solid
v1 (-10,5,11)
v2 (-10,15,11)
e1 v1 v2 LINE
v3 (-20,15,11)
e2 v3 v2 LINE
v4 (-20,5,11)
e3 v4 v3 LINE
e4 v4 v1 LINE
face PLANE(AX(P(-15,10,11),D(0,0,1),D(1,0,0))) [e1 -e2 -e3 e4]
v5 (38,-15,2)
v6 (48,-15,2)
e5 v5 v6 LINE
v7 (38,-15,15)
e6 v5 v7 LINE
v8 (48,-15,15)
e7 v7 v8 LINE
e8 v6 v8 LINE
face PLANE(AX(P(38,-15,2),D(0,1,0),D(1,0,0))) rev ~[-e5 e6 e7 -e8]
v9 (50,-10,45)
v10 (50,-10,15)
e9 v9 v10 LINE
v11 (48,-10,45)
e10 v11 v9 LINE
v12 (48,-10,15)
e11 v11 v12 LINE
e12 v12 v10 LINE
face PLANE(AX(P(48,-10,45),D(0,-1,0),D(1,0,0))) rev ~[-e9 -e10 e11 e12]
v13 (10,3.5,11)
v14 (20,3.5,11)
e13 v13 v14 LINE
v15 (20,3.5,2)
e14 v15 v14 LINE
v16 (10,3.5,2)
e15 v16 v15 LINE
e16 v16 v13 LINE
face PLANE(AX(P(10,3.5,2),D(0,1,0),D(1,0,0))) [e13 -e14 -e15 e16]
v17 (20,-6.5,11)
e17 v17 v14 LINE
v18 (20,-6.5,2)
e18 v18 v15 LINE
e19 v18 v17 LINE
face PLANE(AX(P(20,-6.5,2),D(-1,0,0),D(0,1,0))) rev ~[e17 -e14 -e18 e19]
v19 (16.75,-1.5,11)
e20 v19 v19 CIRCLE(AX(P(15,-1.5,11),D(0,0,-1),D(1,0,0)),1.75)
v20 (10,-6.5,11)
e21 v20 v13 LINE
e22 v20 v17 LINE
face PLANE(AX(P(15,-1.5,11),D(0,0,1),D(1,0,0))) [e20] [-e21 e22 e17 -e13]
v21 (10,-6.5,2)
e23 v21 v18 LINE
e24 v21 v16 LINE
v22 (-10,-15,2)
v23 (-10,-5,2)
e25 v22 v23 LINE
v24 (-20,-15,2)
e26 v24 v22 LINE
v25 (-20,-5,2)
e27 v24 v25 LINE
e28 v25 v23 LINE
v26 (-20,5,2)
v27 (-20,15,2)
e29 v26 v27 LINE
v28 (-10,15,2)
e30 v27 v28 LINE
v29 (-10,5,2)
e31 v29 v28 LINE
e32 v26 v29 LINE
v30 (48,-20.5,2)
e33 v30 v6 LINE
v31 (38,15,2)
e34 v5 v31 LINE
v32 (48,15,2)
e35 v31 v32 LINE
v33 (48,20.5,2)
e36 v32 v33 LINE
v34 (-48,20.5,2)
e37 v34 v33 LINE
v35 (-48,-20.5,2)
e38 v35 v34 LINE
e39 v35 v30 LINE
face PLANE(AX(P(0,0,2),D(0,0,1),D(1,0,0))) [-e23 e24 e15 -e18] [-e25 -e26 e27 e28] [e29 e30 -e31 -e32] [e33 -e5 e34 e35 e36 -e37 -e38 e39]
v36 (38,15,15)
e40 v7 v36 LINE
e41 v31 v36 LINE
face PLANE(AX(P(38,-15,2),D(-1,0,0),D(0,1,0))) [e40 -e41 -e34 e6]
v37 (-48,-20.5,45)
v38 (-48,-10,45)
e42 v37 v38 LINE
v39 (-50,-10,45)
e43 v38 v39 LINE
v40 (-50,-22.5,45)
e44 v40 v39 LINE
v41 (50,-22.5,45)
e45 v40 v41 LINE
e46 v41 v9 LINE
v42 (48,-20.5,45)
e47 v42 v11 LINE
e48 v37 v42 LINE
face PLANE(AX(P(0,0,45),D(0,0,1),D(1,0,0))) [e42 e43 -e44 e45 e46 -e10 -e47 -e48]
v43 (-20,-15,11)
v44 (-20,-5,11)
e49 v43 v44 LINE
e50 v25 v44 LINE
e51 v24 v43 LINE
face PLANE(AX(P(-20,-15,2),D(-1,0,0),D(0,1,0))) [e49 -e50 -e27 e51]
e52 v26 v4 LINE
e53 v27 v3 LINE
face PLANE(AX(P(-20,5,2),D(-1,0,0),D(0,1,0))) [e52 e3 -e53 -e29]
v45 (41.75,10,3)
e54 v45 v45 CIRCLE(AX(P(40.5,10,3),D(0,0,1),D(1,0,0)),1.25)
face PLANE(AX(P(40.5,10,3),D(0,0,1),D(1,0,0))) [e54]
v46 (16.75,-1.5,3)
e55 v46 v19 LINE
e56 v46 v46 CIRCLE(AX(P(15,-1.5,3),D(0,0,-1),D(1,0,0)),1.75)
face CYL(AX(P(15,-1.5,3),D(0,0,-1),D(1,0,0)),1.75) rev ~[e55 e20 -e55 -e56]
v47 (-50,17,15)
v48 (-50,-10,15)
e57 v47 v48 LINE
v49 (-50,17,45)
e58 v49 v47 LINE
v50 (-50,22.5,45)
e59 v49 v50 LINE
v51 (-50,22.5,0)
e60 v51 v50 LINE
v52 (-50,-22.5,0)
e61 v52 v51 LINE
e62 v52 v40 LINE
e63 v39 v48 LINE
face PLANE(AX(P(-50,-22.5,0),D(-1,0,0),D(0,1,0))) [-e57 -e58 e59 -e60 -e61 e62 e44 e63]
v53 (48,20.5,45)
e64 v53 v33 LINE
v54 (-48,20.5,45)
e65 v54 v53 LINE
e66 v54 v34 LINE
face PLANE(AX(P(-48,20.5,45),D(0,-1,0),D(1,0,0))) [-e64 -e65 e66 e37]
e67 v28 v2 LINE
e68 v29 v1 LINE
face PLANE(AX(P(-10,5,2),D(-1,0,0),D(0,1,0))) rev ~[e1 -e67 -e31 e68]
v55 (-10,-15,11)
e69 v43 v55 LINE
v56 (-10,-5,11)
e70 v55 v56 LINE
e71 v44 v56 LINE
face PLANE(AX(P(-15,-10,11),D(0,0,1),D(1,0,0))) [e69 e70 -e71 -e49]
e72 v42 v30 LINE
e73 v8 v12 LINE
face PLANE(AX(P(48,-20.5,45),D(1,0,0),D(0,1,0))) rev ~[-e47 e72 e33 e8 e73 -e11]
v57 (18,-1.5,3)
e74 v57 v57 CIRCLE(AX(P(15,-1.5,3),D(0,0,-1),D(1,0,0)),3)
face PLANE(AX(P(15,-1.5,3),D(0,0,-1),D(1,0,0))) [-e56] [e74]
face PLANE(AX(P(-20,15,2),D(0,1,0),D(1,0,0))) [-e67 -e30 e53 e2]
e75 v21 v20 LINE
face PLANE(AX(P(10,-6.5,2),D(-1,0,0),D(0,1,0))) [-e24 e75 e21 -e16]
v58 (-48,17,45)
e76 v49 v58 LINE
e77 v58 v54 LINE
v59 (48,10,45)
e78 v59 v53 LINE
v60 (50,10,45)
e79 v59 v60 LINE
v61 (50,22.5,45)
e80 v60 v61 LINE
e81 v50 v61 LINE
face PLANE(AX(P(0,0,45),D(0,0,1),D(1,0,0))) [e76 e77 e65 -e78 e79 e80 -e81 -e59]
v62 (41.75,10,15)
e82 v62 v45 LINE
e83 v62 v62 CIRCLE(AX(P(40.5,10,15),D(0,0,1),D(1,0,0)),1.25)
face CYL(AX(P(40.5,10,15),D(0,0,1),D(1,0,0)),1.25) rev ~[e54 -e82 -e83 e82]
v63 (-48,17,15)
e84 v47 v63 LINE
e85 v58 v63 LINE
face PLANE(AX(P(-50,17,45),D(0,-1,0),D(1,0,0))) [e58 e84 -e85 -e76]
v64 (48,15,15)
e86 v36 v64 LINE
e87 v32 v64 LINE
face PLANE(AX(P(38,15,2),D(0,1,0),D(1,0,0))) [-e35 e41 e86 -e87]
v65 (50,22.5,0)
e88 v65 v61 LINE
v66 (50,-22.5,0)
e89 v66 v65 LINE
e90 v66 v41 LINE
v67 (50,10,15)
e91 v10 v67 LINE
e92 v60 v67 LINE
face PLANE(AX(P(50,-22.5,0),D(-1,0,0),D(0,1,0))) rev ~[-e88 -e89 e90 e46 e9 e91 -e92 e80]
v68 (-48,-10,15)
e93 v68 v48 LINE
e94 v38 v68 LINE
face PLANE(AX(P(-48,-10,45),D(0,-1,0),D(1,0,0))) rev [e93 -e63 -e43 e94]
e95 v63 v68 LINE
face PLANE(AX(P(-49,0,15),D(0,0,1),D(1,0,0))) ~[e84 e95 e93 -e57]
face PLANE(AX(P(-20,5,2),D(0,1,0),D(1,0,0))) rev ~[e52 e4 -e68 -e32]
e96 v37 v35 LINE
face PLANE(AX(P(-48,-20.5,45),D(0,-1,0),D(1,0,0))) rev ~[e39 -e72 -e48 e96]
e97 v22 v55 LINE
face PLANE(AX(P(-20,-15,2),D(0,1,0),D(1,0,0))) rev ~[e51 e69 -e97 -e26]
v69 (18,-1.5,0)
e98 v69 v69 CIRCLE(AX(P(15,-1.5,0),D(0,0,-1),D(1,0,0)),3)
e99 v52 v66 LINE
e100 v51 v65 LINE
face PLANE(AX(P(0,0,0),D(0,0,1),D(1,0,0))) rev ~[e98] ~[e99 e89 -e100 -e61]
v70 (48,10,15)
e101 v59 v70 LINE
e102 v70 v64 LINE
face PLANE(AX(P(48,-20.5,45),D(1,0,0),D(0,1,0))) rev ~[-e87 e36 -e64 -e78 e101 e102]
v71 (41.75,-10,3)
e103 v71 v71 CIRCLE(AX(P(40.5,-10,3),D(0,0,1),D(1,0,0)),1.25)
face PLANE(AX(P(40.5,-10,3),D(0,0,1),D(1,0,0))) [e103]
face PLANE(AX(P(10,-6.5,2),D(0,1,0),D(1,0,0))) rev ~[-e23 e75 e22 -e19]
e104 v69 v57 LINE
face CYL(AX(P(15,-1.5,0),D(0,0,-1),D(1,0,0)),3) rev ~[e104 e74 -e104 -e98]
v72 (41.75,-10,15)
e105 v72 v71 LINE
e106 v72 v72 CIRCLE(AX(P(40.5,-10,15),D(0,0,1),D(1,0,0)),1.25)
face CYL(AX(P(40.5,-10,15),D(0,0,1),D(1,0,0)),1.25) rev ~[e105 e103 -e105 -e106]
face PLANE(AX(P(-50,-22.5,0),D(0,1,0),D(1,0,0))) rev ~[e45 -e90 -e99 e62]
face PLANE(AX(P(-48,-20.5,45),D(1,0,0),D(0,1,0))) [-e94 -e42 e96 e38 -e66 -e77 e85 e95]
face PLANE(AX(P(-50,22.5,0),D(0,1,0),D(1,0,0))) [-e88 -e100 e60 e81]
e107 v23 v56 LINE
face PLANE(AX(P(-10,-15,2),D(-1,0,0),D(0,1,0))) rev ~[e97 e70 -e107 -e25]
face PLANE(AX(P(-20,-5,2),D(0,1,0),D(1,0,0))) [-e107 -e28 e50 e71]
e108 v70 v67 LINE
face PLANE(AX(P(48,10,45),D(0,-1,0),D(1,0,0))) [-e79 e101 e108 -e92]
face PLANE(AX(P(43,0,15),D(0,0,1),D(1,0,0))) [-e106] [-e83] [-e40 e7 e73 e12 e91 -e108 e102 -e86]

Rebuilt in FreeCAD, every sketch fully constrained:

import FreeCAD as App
import Part
import Sketcher
Q = App.Units.Quantity

doc = App.newDocument("Part")
body = doc.addObject("PartDesign::Body", "Body")

# Sketch on XY plane
sketch1 = body.newObject("Sketcher::SketchObject", "Sketch")
sketch1.AttachmentSupport = (doc.getObject("XY_Plane"), [""])
sketch1.MapMode = "FlatFace"
sketch1.addGeometry([
    Part.LineSegment(App.Vector(-50, 22.5, 0), App.Vector(-50, -22.5, 0)),
    Part.LineSegment(App.Vector(-50, -22.5, 0), App.Vector(50, -22.5, 0)),
    Part.LineSegment(App.Vector(50, -22.5, 0), App.Vector(50, 22.5, 0)),
    Part.LineSegment(App.Vector(50, 22.5, 0), App.Vector(-50, 22.5, 0)),
], False)
sketch1.addConstraint([
    Sketcher.Constraint("Coincident", 0, 2, 1, 1),
    Sketcher.Constraint("Coincident", 1, 2, 2, 1),
    Sketcher.Constraint("Coincident", 2, 2, 3, 1),
    Sketcher.Constraint("Coincident", 3, 2, 0, 1),
    Sketcher.Constraint("Vertical", 0),
    Sketcher.Constraint("Horizontal", 1),
    Sketcher.Constraint("Vertical", 2),
    Sketcher.Constraint("Horizontal", 3),
    Sketcher.Constraint("Symmetric", 0, 2, 2, 2, -1, 1),
    Sketcher.Constraint("DistanceX", 1, 1, 1, 2, Q("100 mm")),
    Sketcher.Constraint("DistanceY", 0, 2, 0, 1, Q("45 mm")),
])
pad1 = body.newObject("PartDesign::Pad", "Pad")
pad1.Profile = sketch1
pad1.Length = 45

# Sketch on XY plane
sketch2 = body.newObject("Sketcher::SketchObject", "Sketch001")
sketch2.AttachmentSupport = (doc.getObject("XY_Plane"), [""])
sketch2.MapMode = "FlatFace"
sketch2.AttachmentOffset = App.Placement(App.Vector(0, 0, 45), App.Rotation())
sketch2.addGeometry([
    Part.LineSegment(App.Vector(-48, 20.5, 0), App.Vector(-48, -20.5, 0)),
    Part.LineSegment(App.Vector(-48, -20.5, 0), App.Vector(48, -20.5, 0)),
    Part.LineSegment(App.Vector(48, -20.5, 0), App.Vector(48, 20.5, 0)),
    Part.LineSegment(App.Vector(48, 20.5, 0), App.Vector(-48, 20.5, 0)),
], False)
sketch2.addConstraint([
    Sketcher.Constraint("Coincident", 0, 2, 1, 1),
    Sketcher.Constraint("Coincident", 1, 2, 2, 1),
    Sketcher.Constraint("Coincident", 2, 2, 3, 1),
    Sketcher.Constraint("Coincident", 3, 2, 0, 1),
    Sketcher.Constraint("Vertical", 0),
    Sketcher.Constraint("Horizontal", 1),
    Sketcher.Constraint("Vertical", 2),
    Sketcher.Constraint("Horizontal", 3),
    Sketcher.Constraint("Symmetric", 0, 2, 2, 2, -1, 1),
    Sketcher.Constraint("DistanceX", 1, 1, 1, 2, Q("96 mm")),
    Sketcher.Constraint("DistanceY", 0, 2, 0, 1, Q("41 mm")),
])
pocket1 = body.newObject("PartDesign::Pocket", "Pocket")
pocket1.Profile = sketch2
pocket1.Length = 43

# Sketch on XY plane
sketch3 = body.newObject("Sketcher::SketchObject", "Sketch002")
sketch3.AttachmentSupport = (doc.getObject("XY_Plane"), [""])
sketch3.MapMode = "FlatFace"
sketch3.AttachmentOffset = App.Placement(App.Vector(0, 0, 2), App.Rotation())
sketch3.addGeometry([
    Part.LineSegment(App.Vector(10, 3.5, 0), App.Vector(10, -6.5, 0)),  # 0
    Part.LineSegment(App.Vector(10, -6.5, 0), App.Vector(20, -6.5, 0)),  # 1
    Part.LineSegment(App.Vector(20, -6.5, 0), App.Vector(20, 3.5, 0)),  # 2
    Part.LineSegment(App.Vector(20, 3.5, 0), App.Vector(10, 3.5, 0)),  # 3
    Part.LineSegment(App.Vector(-20, 15, 0), App.Vector(-20, 5, 0)),  # 4
    Part.LineSegment(App.Vector(-20, 5, 0), App.Vector(-10, 5, 0)),  # 5
    Part.LineSegment(App.Vector(-10, 5, 0), App.Vector(-10, 15, 0)),  # 6
    Part.LineSegment(App.Vector(-10, 15, 0), App.Vector(-20, 15, 0)),  # 7
    Part.LineSegment(App.Vector(-20, -5, 0), App.Vector(-20, -15, 0)),  # 8
    Part.LineSegment(App.Vector(-20, -15, 0), App.Vector(-10, -15, 0)),  # 9
    Part.LineSegment(App.Vector(-10, -15, 0), App.Vector(-10, -5, 0)),  # 10
    Part.LineSegment(App.Vector(-10, -5, 0), App.Vector(-20, -5, 0)),  # 11
], False)
sketch3.addConstraint([
    Sketcher.Constraint("Coincident", 0, 2, 1, 1),
    Sketcher.Constraint("Coincident", 1, 2, 2, 1),
    Sketcher.Constraint("Coincident", 2, 2, 3, 1),
    Sketcher.Constraint("Coincident", 3, 2, 0, 1),
    Sketcher.Constraint("Coincident", 4, 2, 5, 1),
    Sketcher.Constraint("Coincident", 5, 2, 6, 1),
    Sketcher.Constraint("Coincident", 6, 2, 7, 1),
    Sketcher.Constraint("Coincident", 7, 2, 4, 1),
    Sketcher.Constraint("Coincident", 8, 2, 9, 1),
    Sketcher.Constraint("Coincident", 9, 2, 10, 1),
    Sketcher.Constraint("Coincident", 10, 2, 11, 1),
    Sketcher.Constraint("Coincident", 11, 2, 8, 1),
    Sketcher.Constraint("Vertical", 0),
    Sketcher.Constraint("Horizontal", 1),
    Sketcher.Constraint("Vertical", 2),
    Sketcher.Constraint("Horizontal", 3),
    Sketcher.Constraint("Vertical", 4),
    Sketcher.Constraint("Horizontal", 5),
    Sketcher.Constraint("Vertical", 6),
    Sketcher.Constraint("Horizontal", 7),
    Sketcher.Constraint("Vertical", 8),
    Sketcher.Constraint("Horizontal", 9),
    Sketcher.Constraint("Vertical", 10),
    Sketcher.Constraint("Horizontal", 11),
    Sketcher.Constraint("Symmetric", 7, 2, 8, 2, -1),
    Sketcher.Constraint("Symmetric", 5, 2, 10, 2, -1),
    Sketcher.Constraint("Equal", 3, 5),
    Sketcher.Constraint("Equal", 11, 0),
    Sketcher.Constraint("Equal", 2, 4),
    Sketcher.Constraint("DistanceX", 1, 1, 1, 2, Q("10 mm")),
    Sketcher.Constraint("DistanceX", -1, 1, 0, 2, Q("10 mm")),
    Sketcher.Constraint("DistanceX", 4, 2, -1, 1, Q("20 mm")),
    Sketcher.Constraint("DistanceY", -1, 1, 4, 2, Q("5 mm")),
    Sketcher.Constraint("DistanceY", 0, 2, -1, 1, Q("6.5 mm")),
])
pad2 = body.newObject("PartDesign::Pad", "Pad001")
pad2.Profile = sketch3
pad2.Length = 9

# Sketch on XY plane
sketch4 = body.newObject("Sketcher::SketchObject", "Sketch003")
sketch4.AttachmentSupport = (doc.getObject("XY_Plane"), [""])
sketch4.MapMode = "FlatFace"
sketch4.addGeometry(Part.Circle(App.Vector(15, -1.5, 0), App.Vector(0, 0, 1), 3), False)
sketch4.addConstraint([
    Sketcher.Constraint("Diameter", 0, Q("6 mm")),
    Sketcher.Constraint("DistanceX", -1, 1, 0, 3, Q("15 mm")),
    Sketcher.Constraint("DistanceY", 0, 3, -1, 1, Q("1.5 mm")),
])
pocket2 = body.newObject("PartDesign::Pocket", "Pocket001")
pocket2.Profile = sketch4
pocket2.Length = 3
pocket2.Reversed = True

# Sketch on XY plane
sketch5 = body.newObject("Sketcher::SketchObject", "Sketch004")
sketch5.AttachmentSupport = (doc.getObject("XY_Plane"), [""])
sketch5.MapMode = "FlatFace"
sketch5.AttachmentOffset = App.Placement(App.Vector(0, 0, 3), App.Rotation())
sketch5.addGeometry(Part.Circle(App.Vector(15, -1.5, 0), App.Vector(0, 0, 1), 1.75), False)
sketch5.addConstraint([
    Sketcher.Constraint("Diameter", 0, Q("3.5 mm")),
    Sketcher.Constraint("DistanceX", -1, 1, 0, 3, Q("15 mm")),
    Sketcher.Constraint("DistanceY", 0, 3, -1, 1, Q("1.5 mm")),
])
pocket3 = body.newObject("PartDesign::Pocket", "Pocket002")
pocket3.Profile = sketch5
pocket3.Type = "ThroughAll"
pocket3.Reversed = True

# Sketch on XY plane
sketch6 = body.newObject("Sketcher::SketchObject", "Sketch005")
sketch6.AttachmentSupport = (doc.getObject("XY_Plane"), [""])
sketch6.MapMode = "FlatFace"
sketch6.AttachmentOffset = App.Placement(App.Vector(0, 0, 45), App.Rotation())
sketch6.addGeometry([
    Part.LineSegment(App.Vector(48, 10, 0), App.Vector(48, -10, 0)),
    Part.LineSegment(App.Vector(48, -10, 0), App.Vector(50, -10, 0)),
    Part.LineSegment(App.Vector(50, -10, 0), App.Vector(50, 10, 0)),
    Part.LineSegment(App.Vector(50, 10, 0), App.Vector(48, 10, 0)),
], False)
sketch6.addConstraint([
    Sketcher.Constraint("Coincident", 0, 2, 1, 1),
    Sketcher.Constraint("Coincident", 1, 2, 2, 1),
    Sketcher.Constraint("Coincident", 2, 2, 3, 1),
    Sketcher.Constraint("Coincident", 3, 2, 0, 1),
    Sketcher.Constraint("Vertical", 0),
    Sketcher.Constraint("Horizontal", 1),
    Sketcher.Constraint("Vertical", 2),
    Sketcher.Constraint("Horizontal", 3),
    Sketcher.Constraint("DistanceX", 1, 1, 1, 2, Q("2 mm")),
    Sketcher.Constraint("DistanceY", 0, 2, 0, 1, Q("20 mm")),
    Sketcher.Constraint("DistanceX", -1, 1, 0, 2, Q("48 mm")),
    Sketcher.Constraint("DistanceY", 0, 2, -1, 1, Q("10 mm")),
])
pocket4 = body.newObject("PartDesign::Pocket", "Pocket003")
pocket4.Profile = sketch6
pocket4.Length = 30
doc.recompute()

mirrored = body.newObject("PartDesign::Mirrored", "Mirrored")
mirrored.Originals = [pocket4]
mirrored.MirrorPlane = (doc.getObject("YZ_Plane"), [""])
body.Tip = mirrored

# Sketch on XY plane
sketch7 = body.newObject("Sketcher::SketchObject", "Sketch006")
sketch7.AttachmentSupport = (doc.getObject("XY_Plane"), [""])
sketch7.MapMode = "FlatFace"
sketch7.AttachmentOffset = App.Placement(App.Vector(0, 0, 2), App.Rotation())
sketch7.addGeometry([
    Part.LineSegment(App.Vector(38, 15, 0), App.Vector(38, -15, 0)),
    Part.LineSegment(App.Vector(38, -15, 0), App.Vector(48, -15, 0)),
    Part.LineSegment(App.Vector(48, -15, 0), App.Vector(48, 15, 0)),
    Part.LineSegment(App.Vector(48, 15, 0), App.Vector(38, 15, 0)),
], False)
sketch7.addConstraint([
    Sketcher.Constraint("Coincident", 0, 2, 1, 1),
    Sketcher.Constraint("Coincident", 1, 2, 2, 1),
    Sketcher.Constraint("Coincident", 2, 2, 3, 1),
    Sketcher.Constraint("Coincident", 3, 2, 0, 1),
    Sketcher.Constraint("Vertical", 0),
    Sketcher.Constraint("Horizontal", 1),
    Sketcher.Constraint("Vertical", 2),
    Sketcher.Constraint("Horizontal", 3),
    Sketcher.Constraint("DistanceX", 1, 1, 1, 2, Q("10 mm")),
    Sketcher.Constraint("DistanceY", 0, 2, 0, 1, Q("30 mm")),
    Sketcher.Constraint("DistanceX", -1, 1, 0, 2, Q("38 mm")),
    Sketcher.Constraint("DistanceY", 0, 2, -1, 1, Q("15 mm")),
])
pad3 = body.newObject("PartDesign::Pad", "Pad002")
pad3.Profile = sketch7
pad3.Length = 13

# Sketch on XY plane
sketch8 = body.newObject("Sketcher::SketchObject", "Sketch007")
sketch8.AttachmentSupport = (doc.getObject("XY_Plane"), [""])
sketch8.MapMode = "FlatFace"
sketch8.AttachmentOffset = App.Placement(App.Vector(0, 0, 15), App.Rotation())
sketch8.addGeometry([
    Part.Circle(App.Vector(40.5, 10, 0), App.Vector(0, 0, 1), 1.25),
    Part.Circle(App.Vector(40.5, -10, 0), App.Vector(0, 0, 1), 1.25),
], False)
sketch8.addConstraint([
    Sketcher.Constraint("Equal", 0, 1),
    Sketcher.Constraint("Symmetric", 0, 3, 1, 3, -1),
    Sketcher.Constraint("Diameter", 0, Q("2.5 mm")),
    Sketcher.Constraint("DistanceY", -1, 1, 0, 3, Q("10 mm")),
    Sketcher.Constraint("DistanceX", -1, 1, 0, 3, Q("40.5 mm")),
])
pocket5 = body.newObject("PartDesign::Pocket", "Pocket004")
pocket5.Profile = sketch8
pocket5.Length = 12

# Sketch on XY plane
sketch9 = body.newObject("Sketcher::SketchObject", "Sketch008")
sketch9.AttachmentSupport = (doc.getObject("XY_Plane"), [""])
sketch9.MapMode = "FlatFace"
sketch9.AttachmentOffset = App.Placement(App.Vector(0, 0, 45), App.Rotation())
sketch9.addGeometry([
    Part.LineSegment(App.Vector(-50, 17, 0), App.Vector(-50, 10, 0)),
    Part.LineSegment(App.Vector(-50, 10, 0), App.Vector(-48, 10, 0)),
    Part.LineSegment(App.Vector(-48, 10, 0), App.Vector(-48, 17, 0)),
    Part.LineSegment(App.Vector(-48, 17, 0), App.Vector(-50, 17, 0)),
], False)
sketch9.addConstraint([
    Sketcher.Constraint("Coincident", 0, 2, 1, 1),
    Sketcher.Constraint("Coincident", 1, 2, 2, 1),
    Sketcher.Constraint("Coincident", 2, 2, 3, 1),
    Sketcher.Constraint("Coincident", 3, 2, 0, 1),
    Sketcher.Constraint("Vertical", 0),
    Sketcher.Constraint("Horizontal", 1),
    Sketcher.Constraint("Vertical", 2),
    Sketcher.Constraint("Horizontal", 3),
    Sketcher.Constraint("DistanceX", 1, 1, 1, 2, Q("2 mm")),
    Sketcher.Constraint("DistanceY", 0, 2, 0, 1, Q("7 mm")),
    Sketcher.Constraint("DistanceX", 0, 2, -1, 1, Q("50 mm")),
    Sketcher.Constraint("DistanceY", -1, 1, 0, 2, Q("10 mm")),
])
pocket6 = body.newObject("PartDesign::Pocket", "Pocket005")
pocket6.Profile = sketch9
pocket6.Length = 30

doc.recompute()
